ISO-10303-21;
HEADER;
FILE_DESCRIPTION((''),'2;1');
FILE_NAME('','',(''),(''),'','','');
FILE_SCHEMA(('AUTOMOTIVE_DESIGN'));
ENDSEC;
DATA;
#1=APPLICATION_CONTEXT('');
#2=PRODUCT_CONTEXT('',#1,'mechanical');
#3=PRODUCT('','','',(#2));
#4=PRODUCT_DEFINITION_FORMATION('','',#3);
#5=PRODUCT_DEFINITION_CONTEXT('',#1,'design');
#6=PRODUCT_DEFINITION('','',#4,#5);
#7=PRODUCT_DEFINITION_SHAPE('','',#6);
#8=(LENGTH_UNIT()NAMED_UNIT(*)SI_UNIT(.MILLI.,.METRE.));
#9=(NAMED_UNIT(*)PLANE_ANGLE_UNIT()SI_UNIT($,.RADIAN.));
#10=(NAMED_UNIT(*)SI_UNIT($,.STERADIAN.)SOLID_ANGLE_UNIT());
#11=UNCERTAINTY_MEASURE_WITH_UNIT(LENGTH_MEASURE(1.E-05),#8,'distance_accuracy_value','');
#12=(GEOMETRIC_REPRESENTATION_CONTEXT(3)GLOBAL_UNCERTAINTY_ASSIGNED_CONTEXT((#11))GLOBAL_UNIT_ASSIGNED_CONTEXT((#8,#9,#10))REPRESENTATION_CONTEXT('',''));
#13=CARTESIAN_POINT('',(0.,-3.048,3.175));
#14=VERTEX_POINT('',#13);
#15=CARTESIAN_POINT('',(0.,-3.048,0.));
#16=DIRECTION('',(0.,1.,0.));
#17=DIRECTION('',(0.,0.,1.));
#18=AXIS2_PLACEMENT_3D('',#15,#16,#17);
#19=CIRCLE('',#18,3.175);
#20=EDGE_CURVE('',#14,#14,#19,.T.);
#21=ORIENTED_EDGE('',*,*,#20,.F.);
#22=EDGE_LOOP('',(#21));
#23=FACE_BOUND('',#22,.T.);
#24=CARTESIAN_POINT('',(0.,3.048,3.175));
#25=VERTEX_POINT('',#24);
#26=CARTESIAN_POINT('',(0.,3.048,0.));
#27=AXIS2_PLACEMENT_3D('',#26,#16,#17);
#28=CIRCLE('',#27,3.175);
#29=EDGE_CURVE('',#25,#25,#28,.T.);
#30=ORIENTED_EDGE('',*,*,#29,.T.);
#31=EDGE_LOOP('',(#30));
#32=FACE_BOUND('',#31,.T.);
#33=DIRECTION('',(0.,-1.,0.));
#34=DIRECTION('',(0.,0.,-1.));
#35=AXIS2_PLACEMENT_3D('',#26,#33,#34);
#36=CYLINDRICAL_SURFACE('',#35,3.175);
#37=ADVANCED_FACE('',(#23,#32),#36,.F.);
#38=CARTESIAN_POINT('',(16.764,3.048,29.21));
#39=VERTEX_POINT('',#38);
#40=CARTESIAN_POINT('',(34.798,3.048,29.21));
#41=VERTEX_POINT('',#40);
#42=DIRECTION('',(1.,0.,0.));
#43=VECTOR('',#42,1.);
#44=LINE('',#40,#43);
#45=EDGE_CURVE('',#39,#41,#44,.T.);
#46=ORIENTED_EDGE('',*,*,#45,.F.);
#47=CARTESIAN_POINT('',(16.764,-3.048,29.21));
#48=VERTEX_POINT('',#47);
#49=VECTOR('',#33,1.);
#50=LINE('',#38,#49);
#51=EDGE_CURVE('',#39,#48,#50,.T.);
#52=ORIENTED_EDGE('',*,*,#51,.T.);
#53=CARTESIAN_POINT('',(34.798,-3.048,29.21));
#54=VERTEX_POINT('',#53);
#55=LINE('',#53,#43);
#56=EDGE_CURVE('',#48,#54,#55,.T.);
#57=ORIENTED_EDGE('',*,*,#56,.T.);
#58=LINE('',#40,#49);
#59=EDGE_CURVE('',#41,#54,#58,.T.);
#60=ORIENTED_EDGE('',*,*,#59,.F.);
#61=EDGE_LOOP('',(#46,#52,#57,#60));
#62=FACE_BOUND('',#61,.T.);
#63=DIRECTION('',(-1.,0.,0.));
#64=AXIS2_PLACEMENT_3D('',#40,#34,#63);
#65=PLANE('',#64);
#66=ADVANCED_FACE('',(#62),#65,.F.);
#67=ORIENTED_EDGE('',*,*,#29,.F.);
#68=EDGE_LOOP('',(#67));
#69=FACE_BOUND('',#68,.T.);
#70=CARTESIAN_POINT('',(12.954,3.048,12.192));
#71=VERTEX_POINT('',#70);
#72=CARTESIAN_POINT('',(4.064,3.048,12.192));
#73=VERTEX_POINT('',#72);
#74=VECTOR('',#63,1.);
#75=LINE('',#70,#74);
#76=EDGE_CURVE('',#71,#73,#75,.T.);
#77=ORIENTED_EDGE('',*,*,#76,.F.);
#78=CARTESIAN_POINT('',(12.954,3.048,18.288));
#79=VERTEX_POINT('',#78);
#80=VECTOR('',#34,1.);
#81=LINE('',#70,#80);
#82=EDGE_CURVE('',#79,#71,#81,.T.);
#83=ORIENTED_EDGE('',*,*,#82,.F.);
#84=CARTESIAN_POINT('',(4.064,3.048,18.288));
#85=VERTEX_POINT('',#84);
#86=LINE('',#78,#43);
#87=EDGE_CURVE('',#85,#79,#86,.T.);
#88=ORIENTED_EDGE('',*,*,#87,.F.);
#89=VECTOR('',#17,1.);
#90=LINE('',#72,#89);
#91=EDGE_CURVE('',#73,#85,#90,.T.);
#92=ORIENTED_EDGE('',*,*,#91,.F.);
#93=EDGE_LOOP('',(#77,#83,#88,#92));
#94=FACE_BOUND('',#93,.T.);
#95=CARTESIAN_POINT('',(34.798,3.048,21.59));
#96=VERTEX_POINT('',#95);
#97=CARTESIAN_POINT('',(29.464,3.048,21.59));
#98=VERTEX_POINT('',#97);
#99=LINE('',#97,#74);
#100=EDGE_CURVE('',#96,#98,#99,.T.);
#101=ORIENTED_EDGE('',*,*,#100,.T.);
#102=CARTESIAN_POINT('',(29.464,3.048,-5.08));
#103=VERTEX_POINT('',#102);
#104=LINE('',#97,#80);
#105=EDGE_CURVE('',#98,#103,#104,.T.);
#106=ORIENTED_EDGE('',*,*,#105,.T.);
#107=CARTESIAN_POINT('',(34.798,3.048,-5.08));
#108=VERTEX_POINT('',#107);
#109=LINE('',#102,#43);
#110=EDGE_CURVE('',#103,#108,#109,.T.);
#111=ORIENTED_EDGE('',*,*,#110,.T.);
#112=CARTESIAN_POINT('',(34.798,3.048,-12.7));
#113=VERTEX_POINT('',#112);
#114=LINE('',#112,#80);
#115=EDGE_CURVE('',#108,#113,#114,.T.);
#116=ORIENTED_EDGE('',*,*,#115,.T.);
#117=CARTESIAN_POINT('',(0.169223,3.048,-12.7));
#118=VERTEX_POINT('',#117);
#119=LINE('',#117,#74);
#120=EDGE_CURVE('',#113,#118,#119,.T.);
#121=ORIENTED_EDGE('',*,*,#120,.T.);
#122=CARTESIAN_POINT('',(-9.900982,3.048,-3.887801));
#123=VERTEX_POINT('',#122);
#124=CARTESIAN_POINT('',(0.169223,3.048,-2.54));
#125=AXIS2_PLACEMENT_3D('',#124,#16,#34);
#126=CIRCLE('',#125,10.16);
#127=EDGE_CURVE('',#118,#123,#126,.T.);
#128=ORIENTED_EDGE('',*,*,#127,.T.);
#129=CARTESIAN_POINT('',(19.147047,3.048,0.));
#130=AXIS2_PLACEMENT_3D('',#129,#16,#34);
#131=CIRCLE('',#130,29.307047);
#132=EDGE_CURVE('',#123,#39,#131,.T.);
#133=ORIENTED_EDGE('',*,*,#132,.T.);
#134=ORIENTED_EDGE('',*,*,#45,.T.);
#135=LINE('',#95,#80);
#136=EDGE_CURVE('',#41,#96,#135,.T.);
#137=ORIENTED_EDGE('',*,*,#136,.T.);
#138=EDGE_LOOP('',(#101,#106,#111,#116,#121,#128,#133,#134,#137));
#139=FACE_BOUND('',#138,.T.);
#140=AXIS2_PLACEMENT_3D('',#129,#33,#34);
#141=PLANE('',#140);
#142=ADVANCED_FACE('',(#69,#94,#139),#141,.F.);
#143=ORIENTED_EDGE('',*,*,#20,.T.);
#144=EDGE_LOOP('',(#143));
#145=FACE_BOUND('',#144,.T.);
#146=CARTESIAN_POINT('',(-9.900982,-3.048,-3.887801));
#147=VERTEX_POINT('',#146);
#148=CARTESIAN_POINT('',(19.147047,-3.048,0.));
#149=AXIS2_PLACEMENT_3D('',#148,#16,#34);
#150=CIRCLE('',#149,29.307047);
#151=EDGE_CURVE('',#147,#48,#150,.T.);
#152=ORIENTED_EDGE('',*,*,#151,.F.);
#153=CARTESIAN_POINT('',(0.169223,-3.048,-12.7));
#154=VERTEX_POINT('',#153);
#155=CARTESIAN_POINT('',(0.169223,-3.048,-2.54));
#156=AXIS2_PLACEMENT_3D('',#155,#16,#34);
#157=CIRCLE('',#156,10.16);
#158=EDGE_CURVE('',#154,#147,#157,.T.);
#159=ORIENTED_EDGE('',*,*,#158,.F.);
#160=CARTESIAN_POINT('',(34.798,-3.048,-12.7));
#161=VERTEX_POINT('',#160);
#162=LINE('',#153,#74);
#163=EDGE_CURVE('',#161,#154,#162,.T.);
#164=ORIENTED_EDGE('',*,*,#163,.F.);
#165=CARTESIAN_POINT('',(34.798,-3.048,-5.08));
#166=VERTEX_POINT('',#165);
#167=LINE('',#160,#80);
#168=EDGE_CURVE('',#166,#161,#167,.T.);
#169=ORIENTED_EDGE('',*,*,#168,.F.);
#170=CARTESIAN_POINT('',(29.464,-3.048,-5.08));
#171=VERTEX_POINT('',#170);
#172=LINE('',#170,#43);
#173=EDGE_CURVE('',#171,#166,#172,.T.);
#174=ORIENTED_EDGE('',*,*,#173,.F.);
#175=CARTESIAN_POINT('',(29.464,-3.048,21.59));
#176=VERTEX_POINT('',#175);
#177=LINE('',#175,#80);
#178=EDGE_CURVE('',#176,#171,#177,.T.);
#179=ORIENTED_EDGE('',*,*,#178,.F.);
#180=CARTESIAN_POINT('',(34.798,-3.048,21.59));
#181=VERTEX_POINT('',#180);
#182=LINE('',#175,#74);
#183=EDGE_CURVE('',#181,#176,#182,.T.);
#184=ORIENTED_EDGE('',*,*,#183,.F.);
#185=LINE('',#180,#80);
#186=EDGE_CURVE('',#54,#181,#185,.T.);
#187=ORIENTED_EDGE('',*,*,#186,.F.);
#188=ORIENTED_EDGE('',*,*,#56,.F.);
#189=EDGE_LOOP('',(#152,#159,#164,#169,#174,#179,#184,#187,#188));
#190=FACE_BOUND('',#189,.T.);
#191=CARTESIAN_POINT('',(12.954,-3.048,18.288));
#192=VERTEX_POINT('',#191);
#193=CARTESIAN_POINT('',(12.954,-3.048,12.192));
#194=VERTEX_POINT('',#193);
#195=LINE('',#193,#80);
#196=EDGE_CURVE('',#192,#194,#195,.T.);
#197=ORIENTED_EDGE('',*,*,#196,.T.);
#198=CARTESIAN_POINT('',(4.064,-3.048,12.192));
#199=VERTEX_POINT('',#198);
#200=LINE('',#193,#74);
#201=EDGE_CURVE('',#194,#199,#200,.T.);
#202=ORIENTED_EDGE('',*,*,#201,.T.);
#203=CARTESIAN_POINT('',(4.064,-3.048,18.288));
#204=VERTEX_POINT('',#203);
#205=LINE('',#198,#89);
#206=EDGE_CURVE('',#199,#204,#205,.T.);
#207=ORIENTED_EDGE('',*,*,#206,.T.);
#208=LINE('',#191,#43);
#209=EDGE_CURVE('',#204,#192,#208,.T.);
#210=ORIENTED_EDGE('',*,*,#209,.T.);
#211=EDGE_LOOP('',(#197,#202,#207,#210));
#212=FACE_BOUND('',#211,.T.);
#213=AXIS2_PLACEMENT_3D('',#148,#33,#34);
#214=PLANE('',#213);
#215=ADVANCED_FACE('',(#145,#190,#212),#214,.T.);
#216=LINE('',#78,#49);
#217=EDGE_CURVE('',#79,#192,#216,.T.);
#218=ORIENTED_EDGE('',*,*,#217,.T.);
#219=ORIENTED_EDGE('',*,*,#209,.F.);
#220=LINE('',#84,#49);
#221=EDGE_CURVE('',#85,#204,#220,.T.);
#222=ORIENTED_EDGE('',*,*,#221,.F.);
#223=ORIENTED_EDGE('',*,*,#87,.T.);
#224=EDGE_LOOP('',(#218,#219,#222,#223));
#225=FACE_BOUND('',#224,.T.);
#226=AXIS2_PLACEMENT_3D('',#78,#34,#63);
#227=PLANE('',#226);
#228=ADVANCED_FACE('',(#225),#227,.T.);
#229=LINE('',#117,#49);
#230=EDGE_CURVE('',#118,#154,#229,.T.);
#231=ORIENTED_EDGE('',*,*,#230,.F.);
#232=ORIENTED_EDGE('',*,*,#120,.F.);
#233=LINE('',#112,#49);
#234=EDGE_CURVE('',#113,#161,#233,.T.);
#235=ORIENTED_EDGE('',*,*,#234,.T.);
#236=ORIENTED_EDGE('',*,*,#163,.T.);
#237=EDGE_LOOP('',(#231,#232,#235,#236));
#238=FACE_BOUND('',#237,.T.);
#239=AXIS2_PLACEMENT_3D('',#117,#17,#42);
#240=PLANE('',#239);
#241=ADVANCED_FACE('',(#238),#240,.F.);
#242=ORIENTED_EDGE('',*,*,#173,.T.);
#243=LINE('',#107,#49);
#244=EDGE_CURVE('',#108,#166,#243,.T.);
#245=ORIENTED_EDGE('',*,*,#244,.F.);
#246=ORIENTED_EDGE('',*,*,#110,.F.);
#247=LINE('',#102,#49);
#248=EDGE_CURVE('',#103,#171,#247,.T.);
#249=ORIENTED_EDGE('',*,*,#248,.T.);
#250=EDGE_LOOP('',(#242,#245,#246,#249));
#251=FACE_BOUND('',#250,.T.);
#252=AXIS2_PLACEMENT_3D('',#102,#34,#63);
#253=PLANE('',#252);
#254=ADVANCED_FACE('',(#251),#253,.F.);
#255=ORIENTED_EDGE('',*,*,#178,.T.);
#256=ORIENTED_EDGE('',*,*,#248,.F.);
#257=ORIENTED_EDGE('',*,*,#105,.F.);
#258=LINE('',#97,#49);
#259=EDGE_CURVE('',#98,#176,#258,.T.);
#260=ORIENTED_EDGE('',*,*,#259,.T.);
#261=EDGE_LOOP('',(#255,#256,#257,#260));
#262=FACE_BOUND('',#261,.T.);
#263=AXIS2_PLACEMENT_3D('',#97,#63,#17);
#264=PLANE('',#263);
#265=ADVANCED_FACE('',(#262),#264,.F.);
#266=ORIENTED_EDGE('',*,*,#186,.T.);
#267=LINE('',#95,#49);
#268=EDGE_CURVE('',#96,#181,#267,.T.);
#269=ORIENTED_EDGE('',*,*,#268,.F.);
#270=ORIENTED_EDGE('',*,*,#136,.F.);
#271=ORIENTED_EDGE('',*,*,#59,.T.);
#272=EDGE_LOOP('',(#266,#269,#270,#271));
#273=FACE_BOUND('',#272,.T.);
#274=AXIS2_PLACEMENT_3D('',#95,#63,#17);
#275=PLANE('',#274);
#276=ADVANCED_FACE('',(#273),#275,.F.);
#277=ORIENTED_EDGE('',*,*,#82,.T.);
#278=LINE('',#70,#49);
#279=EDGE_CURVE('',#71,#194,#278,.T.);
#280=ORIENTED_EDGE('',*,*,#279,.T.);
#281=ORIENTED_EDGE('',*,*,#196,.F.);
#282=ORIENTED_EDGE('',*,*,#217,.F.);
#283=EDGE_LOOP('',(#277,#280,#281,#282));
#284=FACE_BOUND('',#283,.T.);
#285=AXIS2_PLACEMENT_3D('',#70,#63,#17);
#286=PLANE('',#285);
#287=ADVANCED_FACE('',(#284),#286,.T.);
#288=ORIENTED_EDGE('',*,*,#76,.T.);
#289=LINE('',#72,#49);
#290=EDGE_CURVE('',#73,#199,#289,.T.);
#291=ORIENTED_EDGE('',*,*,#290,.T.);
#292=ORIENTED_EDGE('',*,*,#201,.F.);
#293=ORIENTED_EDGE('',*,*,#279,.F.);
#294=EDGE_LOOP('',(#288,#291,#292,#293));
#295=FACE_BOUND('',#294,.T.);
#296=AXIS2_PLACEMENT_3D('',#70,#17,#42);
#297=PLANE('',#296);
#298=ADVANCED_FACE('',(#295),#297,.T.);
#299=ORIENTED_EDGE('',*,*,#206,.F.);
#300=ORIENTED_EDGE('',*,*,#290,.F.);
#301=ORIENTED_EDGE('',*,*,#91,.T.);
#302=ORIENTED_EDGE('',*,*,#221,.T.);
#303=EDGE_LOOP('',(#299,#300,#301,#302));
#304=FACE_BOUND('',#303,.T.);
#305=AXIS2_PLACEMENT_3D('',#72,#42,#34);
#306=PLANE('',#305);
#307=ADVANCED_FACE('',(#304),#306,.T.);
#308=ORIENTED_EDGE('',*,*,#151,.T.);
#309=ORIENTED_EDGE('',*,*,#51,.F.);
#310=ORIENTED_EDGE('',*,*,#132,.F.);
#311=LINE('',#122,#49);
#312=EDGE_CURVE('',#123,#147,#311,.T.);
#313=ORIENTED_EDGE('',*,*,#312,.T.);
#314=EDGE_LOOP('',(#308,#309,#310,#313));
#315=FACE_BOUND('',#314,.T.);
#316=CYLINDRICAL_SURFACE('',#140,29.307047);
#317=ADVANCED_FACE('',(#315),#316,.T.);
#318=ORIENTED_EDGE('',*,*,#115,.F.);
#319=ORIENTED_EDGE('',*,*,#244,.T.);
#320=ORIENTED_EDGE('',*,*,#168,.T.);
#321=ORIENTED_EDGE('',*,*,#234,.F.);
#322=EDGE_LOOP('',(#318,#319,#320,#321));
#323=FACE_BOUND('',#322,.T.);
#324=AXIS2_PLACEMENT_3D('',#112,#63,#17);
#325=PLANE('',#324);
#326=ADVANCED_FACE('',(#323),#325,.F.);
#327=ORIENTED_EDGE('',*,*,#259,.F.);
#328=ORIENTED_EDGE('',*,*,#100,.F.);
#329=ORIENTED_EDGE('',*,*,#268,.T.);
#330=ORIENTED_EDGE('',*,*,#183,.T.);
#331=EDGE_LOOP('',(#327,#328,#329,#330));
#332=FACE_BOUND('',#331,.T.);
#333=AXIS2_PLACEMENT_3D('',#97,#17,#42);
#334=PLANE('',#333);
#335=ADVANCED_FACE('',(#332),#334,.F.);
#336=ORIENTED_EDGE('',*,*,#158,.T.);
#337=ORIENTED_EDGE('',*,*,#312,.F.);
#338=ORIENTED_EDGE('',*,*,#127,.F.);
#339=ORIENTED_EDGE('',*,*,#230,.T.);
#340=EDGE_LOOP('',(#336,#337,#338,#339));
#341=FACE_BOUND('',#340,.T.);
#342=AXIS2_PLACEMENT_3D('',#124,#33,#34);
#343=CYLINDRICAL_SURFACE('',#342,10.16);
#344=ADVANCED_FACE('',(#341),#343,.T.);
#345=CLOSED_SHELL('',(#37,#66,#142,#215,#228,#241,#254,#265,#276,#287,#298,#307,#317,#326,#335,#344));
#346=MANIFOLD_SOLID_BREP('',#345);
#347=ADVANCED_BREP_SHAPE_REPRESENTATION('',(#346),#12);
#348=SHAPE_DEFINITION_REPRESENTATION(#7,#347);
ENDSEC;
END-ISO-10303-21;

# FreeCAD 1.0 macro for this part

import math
import FreeCAD as App
import Part
import Sketcher

V = App.Vector
Q = App.Units.Quantity


def add_polygon(sketch, points):
    """Adds a closed chain of lines whose ends are joined by coincident constraints."""
    first, n = sketch.GeometryCount, len(points)
    for a, b in zip(points, points[1:] + points[:1]):
        sketch.addGeometry(Part.LineSegment(App.Vector(*a, 0), App.Vector(*b, 0)), False)
    for i in range(n):
        sketch.addConstraint(Sketcher.Constraint("Coincident", first + i, 2, first + (i + 1) % n, 1))

doc = App.newDocument("Part")
params = doc.addObject("Spreadsheet::Sheet", "Params")
for row, (alias, value) in enumerate([
    ("sketch1_radius", "0.4 in"),
    ("sketch1_diameter", "0.25 in"),
    ("sketch1_height", "0.3 in"),
    ("sketch1_width", "0.21 in"),
    ("sketch1_width2", "0.71 in"),
    ("pad1_length", "0.24 in"),
], start=1):
    params.set(f"A{row}", alias)
    params.set(f"B{row}", "=" + value)
    params.setAlias(f"B{row}", alias)

body = doc.addObject("PartDesign::Body", "Body")

# Sketch on XZ plane
sketch1 = doc.addObject("Sketcher::SketchObject", "Sketch")
body.addObject(sketch1)
sketch1.AttachmentSupport = (doc.XZ_Plane, [""])
sketch1.MapMode = "FlatFace"
sketch1.addGeometry(Part.LineSegment(V(29.464, 21.59, 0), V(29.464, -5.08, 0)), False)  # 0
sketch1.addGeometry(Part.LineSegment(V(29.464, -5.08, 0), V(34.798, -5.08, 0)), False)  # 1
sketch1.addGeometry(Part.LineSegment(V(34.798, -5.08, 0), V(34.798, -12.7, 0)), False)  # 2
sketch1.addGeometry(Part.LineSegment(V(34.798, -12.7, 0), V(0.169223, -12.7, 0)), False)  # 3
sketch1.addGeometry(Part.ArcOfCircle(Part.Circle(V(0.169223, -2.54, 0), V(0, 0, 1), 10.16), math.radians(-172.376812), math.radians(-90)), False)  # 4
sketch1.addGeometry(Part.ArcOfCircle(Part.Circle(V(19.147047, 0, 0), V(0, 0, 1), 29.307047), math.radians(94.664047), math.radians(187.623188)), False)  # 5
sketch1.addGeometry(Part.LineSegment(V(16.764, 29.21, 0), V(34.798, 29.21, 0)), False)  # 6
sketch1.addGeometry(Part.LineSegment(V(34.798, 29.21, 0), V(34.798, 21.59, 0)), False)  # 7
sketch1.addGeometry(Part.LineSegment(V(34.798, 21.59, 0), V(29.464, 21.59, 0)), False)  # 8
add_polygon(sketch1, [(12.954, 18.288), (4.064, 18.288), (4.064, 12.192), (12.954, 12.192)])  # lines 9-12
sketch1.addGeometry(Part.Circle(V(0, 0, 0), V(0, 0, 1), 3.175), False)  # 13
sketch1.addConstraint([
    Sketcher.Constraint("Coincident", 0, 2, 1, 1),
    Sketcher.Constraint("Coincident", 1, 2, 2, 1),
    Sketcher.Constraint("Coincident", 2, 2, 3, 1),
    Sketcher.Constraint("Tangent", 3, 2, 4, 2),
    Sketcher.Constraint("Tangent", 4, 1, 5, 2),
    Sketcher.Constraint("Coincident", 5, 1, 6, 1),
    Sketcher.Constraint("Coincident", 6, 2, 7, 1),
    Sketcher.Constraint("Coincident", 7, 2, 8, 1),
    Sketcher.Constraint("Coincident", 8, 2, 0, 1),
    Sketcher.Constraint("Vertical", 0),
    Sketcher.Constraint("Horizontal", 1),
    Sketcher.Constraint("Vertical", 2),
    Sketcher.Constraint("Horizontal", 3),
    Sketcher.Constraint("Horizontal", 6),
    Sketcher.Constraint("Vertical", 7),
    Sketcher.Constraint("Horizontal", 8),
    Sketcher.Constraint("Horizontal", 9),
    Sketcher.Constraint("Vertical", 10),
    Sketcher.Constraint("Horizontal", 11),
    Sketcher.Constraint("Vertical", 12),
    Sketcher.Constraint("Coincident", 13, 3, -1, 1),
    Sketcher.Constraint("PointOnObject", 5, 3, -1),
    Sketcher.Constraint("Vertical", 2, 2, 6, 2),
    Sketcher.Constraint("Equal", 2, 7),
    Sketcher.Constraint("Radius", 4, Q("0.4 in")),
    Sketcher.Constraint("Diameter", 13, Q("0.25 in")),
    Sketcher.Constraint("DistanceY", 2, 2, 2, 1, Q("0.3 in")),
    Sketcher.Constraint("DistanceX", 9, 2, 8, 2, Q("1 in")),
    Sketcher.Constraint("DistanceX", 1, 1, 1, 2, Q("0.21 in")),
    Sketcher.Constraint("DistanceX", 6, 1, 6, 2, Q("0.71 in")),
    Sketcher.Constraint("DistanceX", 9, 2, 9, 1, Q("0.35 in")),
    Sketcher.Constraint("DistanceY", 0, 2, 0, 1, Q("1.05 in")),
    Sketcher.Constraint("DistanceY", 10, 2, 10, 1, Q("0.24 in")),
    Sketcher.Constraint("DistanceY", 4, 3, -1, 1, Q("0.1 in")),
    Sketcher.Constraint("DistanceX", -1, 1, 0, 2, Q("1.16 in")),
    Sketcher.Constraint("DistanceY", -1, 1, 9, 2, Q("0.72 in")),
    Sketcher.Constraint("Radius", 5, 29.307047),
])
sketch1.setExpression("Constraints[28]", "Params.sketch1_radius")
sketch1.setExpression("Constraints[29]", "Params.sketch1_diameter")
sketch1.setExpression("Constraints[30]", "Params.sketch1_height")
sketch1.setExpression("Constraints[32]", "Params.sketch1_width")
sketch1.setExpression("Constraints[33]", "Params.sketch1_width2")
pad1 = doc.addObject("PartDesign::Pad", "Pad")
body.addObject(pad1)
pad1.Profile = sketch1
pad1.setExpression("Length", "Params.pad1_length")
pad1.Midplane = True

doc.recompute()
